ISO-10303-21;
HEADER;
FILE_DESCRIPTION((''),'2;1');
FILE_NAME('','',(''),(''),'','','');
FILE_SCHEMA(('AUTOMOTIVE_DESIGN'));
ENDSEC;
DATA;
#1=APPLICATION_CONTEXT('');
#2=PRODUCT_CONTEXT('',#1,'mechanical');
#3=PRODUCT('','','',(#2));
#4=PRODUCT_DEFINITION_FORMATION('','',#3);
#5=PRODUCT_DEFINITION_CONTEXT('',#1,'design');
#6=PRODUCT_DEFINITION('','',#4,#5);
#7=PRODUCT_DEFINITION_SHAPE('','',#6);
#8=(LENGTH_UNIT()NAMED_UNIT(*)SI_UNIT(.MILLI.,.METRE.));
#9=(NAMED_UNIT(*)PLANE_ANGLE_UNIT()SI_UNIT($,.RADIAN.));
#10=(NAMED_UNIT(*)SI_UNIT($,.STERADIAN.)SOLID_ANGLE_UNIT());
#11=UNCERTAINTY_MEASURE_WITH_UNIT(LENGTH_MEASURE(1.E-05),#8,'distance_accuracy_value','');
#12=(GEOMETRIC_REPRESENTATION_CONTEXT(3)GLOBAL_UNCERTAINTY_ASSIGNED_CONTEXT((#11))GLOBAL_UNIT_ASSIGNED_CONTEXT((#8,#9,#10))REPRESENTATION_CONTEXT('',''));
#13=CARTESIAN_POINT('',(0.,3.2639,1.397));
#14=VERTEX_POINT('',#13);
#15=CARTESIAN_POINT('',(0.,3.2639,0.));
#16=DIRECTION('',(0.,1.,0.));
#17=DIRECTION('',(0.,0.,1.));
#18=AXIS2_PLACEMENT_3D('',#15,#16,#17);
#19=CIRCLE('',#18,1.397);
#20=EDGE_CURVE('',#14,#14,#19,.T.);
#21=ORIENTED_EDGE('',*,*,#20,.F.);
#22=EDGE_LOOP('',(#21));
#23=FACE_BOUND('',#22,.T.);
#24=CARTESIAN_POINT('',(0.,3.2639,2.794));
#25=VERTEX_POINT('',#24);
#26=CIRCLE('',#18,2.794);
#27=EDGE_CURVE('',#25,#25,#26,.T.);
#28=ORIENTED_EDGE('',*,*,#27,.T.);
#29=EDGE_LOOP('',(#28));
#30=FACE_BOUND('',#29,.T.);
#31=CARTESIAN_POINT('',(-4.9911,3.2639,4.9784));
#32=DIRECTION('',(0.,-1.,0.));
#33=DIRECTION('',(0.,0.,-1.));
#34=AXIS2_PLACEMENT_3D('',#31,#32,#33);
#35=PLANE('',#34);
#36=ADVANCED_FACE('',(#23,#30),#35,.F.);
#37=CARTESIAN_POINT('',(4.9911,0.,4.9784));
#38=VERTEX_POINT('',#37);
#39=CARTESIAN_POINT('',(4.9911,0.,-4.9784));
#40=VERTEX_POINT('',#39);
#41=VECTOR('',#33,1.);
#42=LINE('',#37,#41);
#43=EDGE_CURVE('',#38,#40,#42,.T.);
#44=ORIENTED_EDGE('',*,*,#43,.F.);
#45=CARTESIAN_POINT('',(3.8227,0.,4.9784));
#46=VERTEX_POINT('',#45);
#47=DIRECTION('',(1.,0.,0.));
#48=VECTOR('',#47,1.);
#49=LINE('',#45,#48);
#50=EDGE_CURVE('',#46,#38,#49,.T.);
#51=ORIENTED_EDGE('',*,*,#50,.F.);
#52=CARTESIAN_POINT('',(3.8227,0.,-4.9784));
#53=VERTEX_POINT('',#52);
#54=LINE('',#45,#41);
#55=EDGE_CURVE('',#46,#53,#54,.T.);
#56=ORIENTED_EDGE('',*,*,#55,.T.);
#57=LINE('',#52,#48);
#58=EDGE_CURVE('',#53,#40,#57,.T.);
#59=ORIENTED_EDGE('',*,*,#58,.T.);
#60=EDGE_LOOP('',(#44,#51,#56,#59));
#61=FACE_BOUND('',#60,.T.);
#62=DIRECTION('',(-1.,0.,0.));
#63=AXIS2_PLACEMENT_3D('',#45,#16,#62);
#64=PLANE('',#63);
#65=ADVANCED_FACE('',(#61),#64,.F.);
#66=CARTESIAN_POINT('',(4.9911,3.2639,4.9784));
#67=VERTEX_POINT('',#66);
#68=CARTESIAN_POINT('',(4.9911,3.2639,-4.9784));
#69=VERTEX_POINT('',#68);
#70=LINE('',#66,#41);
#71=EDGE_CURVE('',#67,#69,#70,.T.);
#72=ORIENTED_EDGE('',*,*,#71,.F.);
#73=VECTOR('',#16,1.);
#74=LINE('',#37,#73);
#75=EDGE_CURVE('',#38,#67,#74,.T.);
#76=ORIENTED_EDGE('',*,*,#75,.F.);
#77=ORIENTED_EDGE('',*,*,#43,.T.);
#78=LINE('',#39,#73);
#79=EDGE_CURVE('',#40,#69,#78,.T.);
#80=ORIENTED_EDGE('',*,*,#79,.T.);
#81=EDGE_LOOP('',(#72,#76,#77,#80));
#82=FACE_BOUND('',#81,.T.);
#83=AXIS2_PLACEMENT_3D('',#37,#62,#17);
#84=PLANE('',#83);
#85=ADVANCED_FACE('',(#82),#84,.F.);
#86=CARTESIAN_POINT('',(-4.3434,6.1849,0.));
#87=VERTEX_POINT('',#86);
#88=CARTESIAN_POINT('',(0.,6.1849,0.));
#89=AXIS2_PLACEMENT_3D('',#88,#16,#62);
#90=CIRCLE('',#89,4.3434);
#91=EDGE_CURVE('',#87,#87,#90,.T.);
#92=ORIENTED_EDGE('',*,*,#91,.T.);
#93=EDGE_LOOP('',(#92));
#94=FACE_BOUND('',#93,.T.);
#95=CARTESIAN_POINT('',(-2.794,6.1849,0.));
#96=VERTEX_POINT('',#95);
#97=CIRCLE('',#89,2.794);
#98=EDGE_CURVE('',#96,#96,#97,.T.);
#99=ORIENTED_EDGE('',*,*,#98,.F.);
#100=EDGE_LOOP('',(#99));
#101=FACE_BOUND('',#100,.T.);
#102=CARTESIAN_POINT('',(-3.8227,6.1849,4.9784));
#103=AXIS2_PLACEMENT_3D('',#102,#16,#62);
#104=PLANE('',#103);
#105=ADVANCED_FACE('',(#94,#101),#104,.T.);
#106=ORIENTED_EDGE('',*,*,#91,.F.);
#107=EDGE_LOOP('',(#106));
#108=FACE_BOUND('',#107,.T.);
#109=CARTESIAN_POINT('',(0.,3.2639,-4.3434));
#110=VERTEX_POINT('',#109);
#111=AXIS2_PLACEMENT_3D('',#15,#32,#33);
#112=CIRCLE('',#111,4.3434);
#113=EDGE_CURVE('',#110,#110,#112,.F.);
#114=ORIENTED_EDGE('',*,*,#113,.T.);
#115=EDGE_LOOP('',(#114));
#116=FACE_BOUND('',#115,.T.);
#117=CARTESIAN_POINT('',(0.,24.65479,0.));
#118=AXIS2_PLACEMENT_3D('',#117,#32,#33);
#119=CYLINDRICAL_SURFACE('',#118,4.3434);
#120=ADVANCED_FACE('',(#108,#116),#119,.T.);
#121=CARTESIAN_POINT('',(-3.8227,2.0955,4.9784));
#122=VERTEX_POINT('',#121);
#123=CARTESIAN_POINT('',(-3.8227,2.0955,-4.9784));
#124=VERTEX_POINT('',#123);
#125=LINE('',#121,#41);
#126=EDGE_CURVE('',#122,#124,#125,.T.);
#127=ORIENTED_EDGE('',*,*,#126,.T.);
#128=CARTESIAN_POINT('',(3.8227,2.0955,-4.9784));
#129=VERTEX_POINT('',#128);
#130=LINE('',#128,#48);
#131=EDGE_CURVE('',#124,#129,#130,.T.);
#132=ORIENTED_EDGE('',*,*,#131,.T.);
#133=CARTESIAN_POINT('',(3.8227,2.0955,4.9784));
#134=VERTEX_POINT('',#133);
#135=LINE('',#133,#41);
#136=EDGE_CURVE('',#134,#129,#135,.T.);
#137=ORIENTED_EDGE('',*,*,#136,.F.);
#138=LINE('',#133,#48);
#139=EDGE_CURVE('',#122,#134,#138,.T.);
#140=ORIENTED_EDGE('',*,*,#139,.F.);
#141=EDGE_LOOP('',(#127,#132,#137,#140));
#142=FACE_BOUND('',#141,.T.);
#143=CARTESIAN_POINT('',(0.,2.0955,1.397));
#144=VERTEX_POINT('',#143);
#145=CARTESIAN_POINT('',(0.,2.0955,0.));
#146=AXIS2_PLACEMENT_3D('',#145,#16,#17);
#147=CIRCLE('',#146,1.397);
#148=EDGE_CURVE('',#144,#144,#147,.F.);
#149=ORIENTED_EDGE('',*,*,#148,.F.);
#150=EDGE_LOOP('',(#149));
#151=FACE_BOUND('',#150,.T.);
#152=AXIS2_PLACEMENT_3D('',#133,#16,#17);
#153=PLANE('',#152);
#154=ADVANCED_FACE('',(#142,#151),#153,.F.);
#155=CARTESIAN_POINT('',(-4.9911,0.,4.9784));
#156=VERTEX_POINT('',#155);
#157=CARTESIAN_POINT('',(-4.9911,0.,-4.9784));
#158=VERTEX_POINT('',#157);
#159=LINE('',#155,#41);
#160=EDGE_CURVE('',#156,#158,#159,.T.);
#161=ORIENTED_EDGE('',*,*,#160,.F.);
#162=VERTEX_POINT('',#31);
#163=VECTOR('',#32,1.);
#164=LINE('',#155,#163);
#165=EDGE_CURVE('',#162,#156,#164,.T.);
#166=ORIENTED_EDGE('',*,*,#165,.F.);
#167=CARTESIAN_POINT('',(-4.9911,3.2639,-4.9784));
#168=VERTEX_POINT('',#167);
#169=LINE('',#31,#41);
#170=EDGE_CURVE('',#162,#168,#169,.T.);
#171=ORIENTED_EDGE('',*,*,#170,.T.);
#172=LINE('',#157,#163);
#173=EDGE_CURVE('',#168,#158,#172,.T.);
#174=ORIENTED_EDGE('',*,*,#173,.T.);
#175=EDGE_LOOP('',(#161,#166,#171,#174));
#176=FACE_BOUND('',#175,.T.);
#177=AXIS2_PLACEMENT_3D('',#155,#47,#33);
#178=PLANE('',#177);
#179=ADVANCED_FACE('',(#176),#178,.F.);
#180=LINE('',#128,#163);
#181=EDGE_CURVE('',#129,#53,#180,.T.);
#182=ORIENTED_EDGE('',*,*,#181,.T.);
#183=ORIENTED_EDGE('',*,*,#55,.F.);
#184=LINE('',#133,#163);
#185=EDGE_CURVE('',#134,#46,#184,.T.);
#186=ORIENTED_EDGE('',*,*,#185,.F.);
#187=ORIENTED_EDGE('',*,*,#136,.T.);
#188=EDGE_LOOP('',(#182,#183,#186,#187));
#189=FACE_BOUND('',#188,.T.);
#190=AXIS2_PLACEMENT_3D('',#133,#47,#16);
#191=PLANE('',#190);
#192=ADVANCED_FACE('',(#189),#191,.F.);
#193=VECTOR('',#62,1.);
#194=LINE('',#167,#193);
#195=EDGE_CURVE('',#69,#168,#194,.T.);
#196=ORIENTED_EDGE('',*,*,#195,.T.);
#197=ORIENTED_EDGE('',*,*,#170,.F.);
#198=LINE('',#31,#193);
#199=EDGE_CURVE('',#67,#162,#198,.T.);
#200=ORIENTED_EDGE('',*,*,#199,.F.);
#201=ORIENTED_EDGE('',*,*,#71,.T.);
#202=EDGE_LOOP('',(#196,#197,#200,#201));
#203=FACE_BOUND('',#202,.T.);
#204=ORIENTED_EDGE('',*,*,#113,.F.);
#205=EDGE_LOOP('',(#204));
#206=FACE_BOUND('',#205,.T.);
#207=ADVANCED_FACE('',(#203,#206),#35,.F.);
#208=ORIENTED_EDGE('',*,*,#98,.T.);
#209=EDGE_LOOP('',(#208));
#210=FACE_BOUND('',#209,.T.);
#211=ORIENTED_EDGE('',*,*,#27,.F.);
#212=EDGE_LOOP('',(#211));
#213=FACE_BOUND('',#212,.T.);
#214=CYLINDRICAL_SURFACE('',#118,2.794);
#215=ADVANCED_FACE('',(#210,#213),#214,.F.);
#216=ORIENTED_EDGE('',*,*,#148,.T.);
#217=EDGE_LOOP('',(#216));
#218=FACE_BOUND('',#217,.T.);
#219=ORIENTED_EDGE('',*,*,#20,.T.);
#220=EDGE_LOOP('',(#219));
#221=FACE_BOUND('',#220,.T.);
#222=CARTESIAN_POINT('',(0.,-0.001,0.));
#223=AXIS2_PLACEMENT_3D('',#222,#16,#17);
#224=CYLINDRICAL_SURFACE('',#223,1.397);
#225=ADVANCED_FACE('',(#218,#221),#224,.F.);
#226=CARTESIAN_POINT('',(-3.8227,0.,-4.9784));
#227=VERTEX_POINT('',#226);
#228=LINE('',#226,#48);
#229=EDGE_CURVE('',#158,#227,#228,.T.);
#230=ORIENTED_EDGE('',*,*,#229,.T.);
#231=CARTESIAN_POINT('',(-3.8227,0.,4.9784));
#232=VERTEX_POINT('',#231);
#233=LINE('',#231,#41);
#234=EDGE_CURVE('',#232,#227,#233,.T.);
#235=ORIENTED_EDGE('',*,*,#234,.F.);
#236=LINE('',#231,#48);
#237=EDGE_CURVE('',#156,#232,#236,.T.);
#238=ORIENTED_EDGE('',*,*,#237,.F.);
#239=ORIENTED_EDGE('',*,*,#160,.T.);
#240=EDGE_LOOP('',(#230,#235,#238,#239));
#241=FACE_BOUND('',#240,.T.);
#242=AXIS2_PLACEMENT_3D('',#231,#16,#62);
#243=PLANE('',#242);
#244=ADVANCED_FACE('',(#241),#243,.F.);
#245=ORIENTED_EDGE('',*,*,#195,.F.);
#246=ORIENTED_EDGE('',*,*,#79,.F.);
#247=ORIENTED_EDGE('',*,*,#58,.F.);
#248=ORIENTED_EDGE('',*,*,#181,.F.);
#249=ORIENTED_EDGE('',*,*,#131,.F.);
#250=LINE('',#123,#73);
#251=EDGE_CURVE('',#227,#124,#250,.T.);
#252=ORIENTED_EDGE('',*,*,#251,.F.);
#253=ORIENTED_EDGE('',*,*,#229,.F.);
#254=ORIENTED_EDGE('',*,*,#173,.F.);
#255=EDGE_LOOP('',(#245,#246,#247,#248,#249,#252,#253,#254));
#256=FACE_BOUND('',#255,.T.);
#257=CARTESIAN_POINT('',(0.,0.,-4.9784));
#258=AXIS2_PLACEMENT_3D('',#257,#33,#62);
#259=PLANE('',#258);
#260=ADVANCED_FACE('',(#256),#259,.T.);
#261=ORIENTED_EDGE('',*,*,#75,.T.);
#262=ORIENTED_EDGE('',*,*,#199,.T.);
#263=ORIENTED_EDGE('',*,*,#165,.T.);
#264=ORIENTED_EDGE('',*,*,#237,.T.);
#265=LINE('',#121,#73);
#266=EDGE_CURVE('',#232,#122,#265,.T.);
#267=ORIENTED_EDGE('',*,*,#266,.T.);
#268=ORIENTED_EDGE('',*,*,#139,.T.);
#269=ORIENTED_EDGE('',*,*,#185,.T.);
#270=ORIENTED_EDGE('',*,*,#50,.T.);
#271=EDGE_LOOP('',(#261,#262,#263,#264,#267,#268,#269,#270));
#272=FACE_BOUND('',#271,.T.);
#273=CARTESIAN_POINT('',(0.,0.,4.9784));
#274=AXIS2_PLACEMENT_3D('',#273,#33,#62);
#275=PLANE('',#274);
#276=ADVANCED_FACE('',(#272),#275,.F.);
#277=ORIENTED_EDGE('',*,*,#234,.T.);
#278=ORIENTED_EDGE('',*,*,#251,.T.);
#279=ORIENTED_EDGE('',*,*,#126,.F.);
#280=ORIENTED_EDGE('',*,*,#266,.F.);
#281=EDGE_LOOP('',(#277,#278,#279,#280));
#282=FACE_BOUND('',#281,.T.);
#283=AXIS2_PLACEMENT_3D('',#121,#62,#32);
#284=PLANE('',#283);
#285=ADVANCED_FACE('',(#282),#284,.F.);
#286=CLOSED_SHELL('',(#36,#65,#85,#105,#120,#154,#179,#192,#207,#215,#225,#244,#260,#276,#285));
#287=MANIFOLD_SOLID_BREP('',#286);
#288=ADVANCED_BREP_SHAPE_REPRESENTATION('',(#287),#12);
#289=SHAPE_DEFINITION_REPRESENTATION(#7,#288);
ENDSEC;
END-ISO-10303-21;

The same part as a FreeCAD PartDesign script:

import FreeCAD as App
import Part
import Sketcher
Q = App.Units.Quantity


def add_polygon(sketch, points):
    """Adds a closed chain of lines whose ends are joined by coincident constraints."""
    first, n = sketch.GeometryCount, len(points)
    for a, b in zip(points, points[1:] + points[:1]):
        sketch.addGeometry(Part.LineSegment(App.Vector(*a, 0), App.Vector(*b, 0)), False)
    for i in range(n):
        sketch.addConstraint(Sketcher.Constraint("Coincident", first + i, 2, first + (i + 1) % n, 1))

doc = App.newDocument("Part")
body = doc.addObject("PartDesign::Body", "Body")

sketch1 = doc.addObject("Sketcher::SketchObject", "Sketch")
body.addObject(sketch1)
sketch1.AttachmentSupport = (doc.XY_Plane, [""])
sketch1.MapMode = "FlatFace"
add_polygon(sketch1, [(-5, 0), (-3.8, 0), (-3.8, 2.1), (3.8, 2.1), (3.8, 0), (5, 0), (5, 3.3), (-5, 3.3)])
sketch1.addConstraint([
    Sketcher.Constraint("Horizontal", 0),
    Sketcher.Constraint("Vertical", 1),
    Sketcher.Constraint("Horizontal", 2),
    Sketcher.Constraint("Vertical", 3),
    Sketcher.Constraint("Horizontal", 4),
    Sketcher.Constraint("Vertical", 5),
    Sketcher.Constraint("Horizontal", 6),
    Sketcher.Constraint("Vertical", 7),
    Sketcher.Constraint("Symmetric", 0, 2, 3, 2, -1, 1),
    Sketcher.Constraint("Symmetric", 4, 2, 7, 2, -2),
    Sketcher.Constraint("DistanceX", 0, 1, 0, 2, Q("0.046 in")),
    Sketcher.Constraint("DistanceX", 2, 1, 2, 2, Q("0.301 in")),
    Sketcher.Constraint("DistanceY", 1, 1, 1, 2, Q("0.0825 in")),
    Sketcher.Constraint("DistanceY", 5, 1, 5, 2, Q("0.1285 in")),
])
pad1 = doc.addObject("PartDesign::Pad", "Pad")
body.addObject(pad1)
pad1.Profile = sketch1
pad1.Length = Q("0.392 in")
pad1.Midplane = True

sketch2 = doc.addObject("Sketcher::SketchObject", "Sketch001")
body.addObject(sketch2)
sketch2.AttachmentSupport = (doc.XZ_Plane, [""])
sketch2.MapMode = "FlatFace"
sketch2.AttachmentOffset = App.Placement(App.Vector(0, 0, -0.1285 * 25.4), App.Rotation())
sketch2.addGeometry([
    Part.Circle(App.Vector(0, 0, 0), App.Vector(0, 0, 1), 4.3),
    Part.Circle(App.Vector(0, 0, 0), App.Vector(0, 0, 1), 2.8),
], False)
sketch2.addConstraint([
    Sketcher.Constraint("Coincident", 0, 3, -1, 1),
    Sketcher.Constraint("Coincident", 1, 3, -1, 1),
    Sketcher.Constraint("Diameter", 1, Q("0.22 in")),
    Sketcher.Constraint("Diameter", 0, Q("0.342 in")),
])
pad2 = doc.addObject("PartDesign::Pad", "Pad001")
body.addObject(pad2)
pad2.Profile = sketch2
pad2.Length = Q("0.115 in")
pad2.Reversed = True

sketch3 = doc.addObject("Sketcher::SketchObject", "Sketch002")
body.addObject(sketch3)
sketch3.AttachmentSupport = (doc.XZ_Plane, [""])
sketch3.MapMode = "FlatFace"
sketch3.AttachmentOffset = App.Placement(App.Vector(0, 0, -0.1285 * 25.4), App.Rotation())
sketch3.addGeometry(Part.Circle(App.Vector(0, 0, 0), App.Vector(0, 0, 1), 1.4), False)
sketch3.addConstraint([
    Sketcher.Constraint("Coincident", 0, 3, -1, 1),
    Sketcher.Constraint("Diameter", 0, Q("0.11 in")),
])
pocket1 = doc.addObject("PartDesign::Pocket", "Pocket")
body.addObject(pocket1)
pocket1.Profile = sketch3
pocket1.Type = "UpToFirst"
pocket1.Reversed = True

doc.recompute()
